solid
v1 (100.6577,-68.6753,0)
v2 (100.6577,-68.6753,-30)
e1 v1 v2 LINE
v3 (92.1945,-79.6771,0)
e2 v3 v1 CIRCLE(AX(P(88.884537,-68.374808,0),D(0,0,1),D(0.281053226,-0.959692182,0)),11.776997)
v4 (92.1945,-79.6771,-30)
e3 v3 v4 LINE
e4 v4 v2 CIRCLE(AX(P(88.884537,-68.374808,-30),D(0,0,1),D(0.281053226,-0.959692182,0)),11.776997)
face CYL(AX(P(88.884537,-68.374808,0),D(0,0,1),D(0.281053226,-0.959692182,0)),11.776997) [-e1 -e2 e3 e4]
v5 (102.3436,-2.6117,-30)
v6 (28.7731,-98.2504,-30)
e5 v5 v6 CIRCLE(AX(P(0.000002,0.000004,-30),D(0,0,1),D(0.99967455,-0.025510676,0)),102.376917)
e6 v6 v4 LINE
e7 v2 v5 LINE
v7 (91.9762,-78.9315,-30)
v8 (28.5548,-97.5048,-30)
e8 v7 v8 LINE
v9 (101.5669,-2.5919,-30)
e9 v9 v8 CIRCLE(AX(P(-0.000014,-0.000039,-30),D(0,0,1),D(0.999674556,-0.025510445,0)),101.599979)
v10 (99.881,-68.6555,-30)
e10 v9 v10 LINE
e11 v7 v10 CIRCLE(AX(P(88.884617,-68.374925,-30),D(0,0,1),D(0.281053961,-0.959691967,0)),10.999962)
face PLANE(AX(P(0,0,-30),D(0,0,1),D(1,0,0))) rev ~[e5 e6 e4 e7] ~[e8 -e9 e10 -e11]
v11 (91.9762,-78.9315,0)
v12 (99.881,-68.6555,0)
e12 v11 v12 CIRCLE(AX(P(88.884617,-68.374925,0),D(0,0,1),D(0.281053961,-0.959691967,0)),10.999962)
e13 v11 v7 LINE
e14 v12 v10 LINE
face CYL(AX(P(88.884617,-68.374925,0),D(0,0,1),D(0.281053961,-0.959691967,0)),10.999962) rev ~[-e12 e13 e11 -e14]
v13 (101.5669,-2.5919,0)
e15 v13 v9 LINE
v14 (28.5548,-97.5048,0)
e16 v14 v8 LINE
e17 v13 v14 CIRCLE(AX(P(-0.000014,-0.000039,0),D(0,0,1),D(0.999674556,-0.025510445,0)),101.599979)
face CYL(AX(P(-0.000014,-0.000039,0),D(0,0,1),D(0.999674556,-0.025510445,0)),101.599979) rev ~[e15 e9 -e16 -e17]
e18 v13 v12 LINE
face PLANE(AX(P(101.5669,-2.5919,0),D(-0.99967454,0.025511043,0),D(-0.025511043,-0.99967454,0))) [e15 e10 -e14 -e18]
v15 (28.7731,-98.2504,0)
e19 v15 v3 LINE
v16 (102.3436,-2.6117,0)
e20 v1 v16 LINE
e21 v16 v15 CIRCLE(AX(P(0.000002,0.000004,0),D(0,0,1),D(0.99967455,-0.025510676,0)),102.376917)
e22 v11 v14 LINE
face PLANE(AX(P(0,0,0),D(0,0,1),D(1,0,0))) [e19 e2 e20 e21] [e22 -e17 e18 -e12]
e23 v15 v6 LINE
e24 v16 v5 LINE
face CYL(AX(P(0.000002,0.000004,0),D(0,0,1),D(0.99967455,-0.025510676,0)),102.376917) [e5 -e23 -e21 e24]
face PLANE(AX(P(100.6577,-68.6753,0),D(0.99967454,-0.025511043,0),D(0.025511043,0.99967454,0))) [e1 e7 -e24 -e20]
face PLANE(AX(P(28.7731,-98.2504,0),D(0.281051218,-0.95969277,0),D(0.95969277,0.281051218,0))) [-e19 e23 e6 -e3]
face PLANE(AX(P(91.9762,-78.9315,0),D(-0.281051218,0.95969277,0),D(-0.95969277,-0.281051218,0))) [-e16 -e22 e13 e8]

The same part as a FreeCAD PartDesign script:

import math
import FreeCAD as App
import Part
import Sketcher
Q = App.Units.Quantity

doc = App.newDocument("Part")
body = doc.addObject("PartDesign::Body", "Body")

# Sketch on XY plane
sketch1 = doc.addObject("Sketcher::SketchObject", "Sketch")
body.addObject(sketch1)
sketch1.AttachmentSupport = (doc.XY_Plane, [""])
sketch1.MapMode = "FlatFace"
sketch1.addGeometry(Part.ArcOfCircle(Part.Circle(App.Vector(89, -68, 0), App.Vector(0, 0, 1), 12), math.radians(-74), math.radians(-1)), False)
sketch1.addGeometry(Part.LineSegment(App.Vector(101, -69, 0), App.Vector(102, -3, 0)), False)
sketch1.addGeometry(Part.ArcOfCircle(Part.Circle(App.Vector(0, 0, 0), App.Vector(0, 0, 1), 102), math.radians(-1), math.radians(286)), False)
sketch1.addGeometry(Part.LineSegment(App.Vector(29, -98, 0), App.Vector(92, -80, 0)), False)
sketch1.addGeometry(Part.ArcOfCircle(Part.Circle(App.Vector(0, 0, 0), App.Vector(0, 0, 1), 102), math.radians(-1), math.radians(286)), False)
sketch1.addGeometry(Part.LineSegment(App.Vector(102, -3, 0), App.Vector(100, -69, 0)), False)
sketch1.addGeometry(Part.ArcOfCircle(Part.Circle(App.Vector(89, -68, 0), App.Vector(0, 0, 1), 11), math.radians(-74), math.radians(-1)), False)
sketch1.addGeometry(Part.LineSegment(App.Vector(92, -79, 0), App.Vector(29, -98, 0)), False)
sketch1.addConstraint(Sketcher.Constraint("Tangent", 0, 2, 1, 1))
sketch1.addConstraint(Sketcher.Constraint("Tangent", 1, 2, 2, 1))
sketch1.addConstraint(Sketcher.Constraint("Tangent", 2, 2, 3, 1))
sketch1.addConstraint(Sketcher.Constraint("Tangent", 3, 2, 0, 1))
sketch1.addConstraint(Sketcher.Constraint("Tangent", 4, 1, 5, 1))
sketch1.addConstraint(Sketcher.Constraint("Tangent", 5, 2, 6, 2))
sketch1.addConstraint(Sketcher.Constraint("Tangent", 6, 1, 7, 1))
sketch1.addConstraint(Sketcher.Constraint("Tangent", 7, 2, 4, 2))
sketch1.addConstraint(Sketcher.Constraint("Coincident", 2, 3, -1, 1))
sketch1.addConstraint(Sketcher.Constraint("Coincident", 4, 3, -1, 1))
sketch1.addConstraint(Sketcher.Constraint("Coincident", 6, 3, 0, 3))
sketch1.addConstraint(Sketcher.Constraint("Parallel", 1, 5))
sketch1.addConstraint(Sketcher.Constraint("Radius", 6, Q("11 mm")))
sketch1.addConstraint(Sketcher.Constraint("Radius", 4, Q("101.6 mm")))
sketch1.addConstraint(Sketcher.Constraint("Radius", 0, Q("11.777 mm")))
sketch1.addConstraint(Sketcher.Constraint("DistanceX", 0, 3, 3, 2, Q("3.31 mm")))
sketch1.addConstraint(Sketcher.Constraint("DistanceY", 7, 2, 0, 3, Q("29.13 mm")))
pad1 = doc.addObject("PartDesign::Pad", "Pad")
body.addObject(pad1)
pad1.Profile = sketch1
pad1.Length = 30
pad1.Reversed = True

doc.recompute()
